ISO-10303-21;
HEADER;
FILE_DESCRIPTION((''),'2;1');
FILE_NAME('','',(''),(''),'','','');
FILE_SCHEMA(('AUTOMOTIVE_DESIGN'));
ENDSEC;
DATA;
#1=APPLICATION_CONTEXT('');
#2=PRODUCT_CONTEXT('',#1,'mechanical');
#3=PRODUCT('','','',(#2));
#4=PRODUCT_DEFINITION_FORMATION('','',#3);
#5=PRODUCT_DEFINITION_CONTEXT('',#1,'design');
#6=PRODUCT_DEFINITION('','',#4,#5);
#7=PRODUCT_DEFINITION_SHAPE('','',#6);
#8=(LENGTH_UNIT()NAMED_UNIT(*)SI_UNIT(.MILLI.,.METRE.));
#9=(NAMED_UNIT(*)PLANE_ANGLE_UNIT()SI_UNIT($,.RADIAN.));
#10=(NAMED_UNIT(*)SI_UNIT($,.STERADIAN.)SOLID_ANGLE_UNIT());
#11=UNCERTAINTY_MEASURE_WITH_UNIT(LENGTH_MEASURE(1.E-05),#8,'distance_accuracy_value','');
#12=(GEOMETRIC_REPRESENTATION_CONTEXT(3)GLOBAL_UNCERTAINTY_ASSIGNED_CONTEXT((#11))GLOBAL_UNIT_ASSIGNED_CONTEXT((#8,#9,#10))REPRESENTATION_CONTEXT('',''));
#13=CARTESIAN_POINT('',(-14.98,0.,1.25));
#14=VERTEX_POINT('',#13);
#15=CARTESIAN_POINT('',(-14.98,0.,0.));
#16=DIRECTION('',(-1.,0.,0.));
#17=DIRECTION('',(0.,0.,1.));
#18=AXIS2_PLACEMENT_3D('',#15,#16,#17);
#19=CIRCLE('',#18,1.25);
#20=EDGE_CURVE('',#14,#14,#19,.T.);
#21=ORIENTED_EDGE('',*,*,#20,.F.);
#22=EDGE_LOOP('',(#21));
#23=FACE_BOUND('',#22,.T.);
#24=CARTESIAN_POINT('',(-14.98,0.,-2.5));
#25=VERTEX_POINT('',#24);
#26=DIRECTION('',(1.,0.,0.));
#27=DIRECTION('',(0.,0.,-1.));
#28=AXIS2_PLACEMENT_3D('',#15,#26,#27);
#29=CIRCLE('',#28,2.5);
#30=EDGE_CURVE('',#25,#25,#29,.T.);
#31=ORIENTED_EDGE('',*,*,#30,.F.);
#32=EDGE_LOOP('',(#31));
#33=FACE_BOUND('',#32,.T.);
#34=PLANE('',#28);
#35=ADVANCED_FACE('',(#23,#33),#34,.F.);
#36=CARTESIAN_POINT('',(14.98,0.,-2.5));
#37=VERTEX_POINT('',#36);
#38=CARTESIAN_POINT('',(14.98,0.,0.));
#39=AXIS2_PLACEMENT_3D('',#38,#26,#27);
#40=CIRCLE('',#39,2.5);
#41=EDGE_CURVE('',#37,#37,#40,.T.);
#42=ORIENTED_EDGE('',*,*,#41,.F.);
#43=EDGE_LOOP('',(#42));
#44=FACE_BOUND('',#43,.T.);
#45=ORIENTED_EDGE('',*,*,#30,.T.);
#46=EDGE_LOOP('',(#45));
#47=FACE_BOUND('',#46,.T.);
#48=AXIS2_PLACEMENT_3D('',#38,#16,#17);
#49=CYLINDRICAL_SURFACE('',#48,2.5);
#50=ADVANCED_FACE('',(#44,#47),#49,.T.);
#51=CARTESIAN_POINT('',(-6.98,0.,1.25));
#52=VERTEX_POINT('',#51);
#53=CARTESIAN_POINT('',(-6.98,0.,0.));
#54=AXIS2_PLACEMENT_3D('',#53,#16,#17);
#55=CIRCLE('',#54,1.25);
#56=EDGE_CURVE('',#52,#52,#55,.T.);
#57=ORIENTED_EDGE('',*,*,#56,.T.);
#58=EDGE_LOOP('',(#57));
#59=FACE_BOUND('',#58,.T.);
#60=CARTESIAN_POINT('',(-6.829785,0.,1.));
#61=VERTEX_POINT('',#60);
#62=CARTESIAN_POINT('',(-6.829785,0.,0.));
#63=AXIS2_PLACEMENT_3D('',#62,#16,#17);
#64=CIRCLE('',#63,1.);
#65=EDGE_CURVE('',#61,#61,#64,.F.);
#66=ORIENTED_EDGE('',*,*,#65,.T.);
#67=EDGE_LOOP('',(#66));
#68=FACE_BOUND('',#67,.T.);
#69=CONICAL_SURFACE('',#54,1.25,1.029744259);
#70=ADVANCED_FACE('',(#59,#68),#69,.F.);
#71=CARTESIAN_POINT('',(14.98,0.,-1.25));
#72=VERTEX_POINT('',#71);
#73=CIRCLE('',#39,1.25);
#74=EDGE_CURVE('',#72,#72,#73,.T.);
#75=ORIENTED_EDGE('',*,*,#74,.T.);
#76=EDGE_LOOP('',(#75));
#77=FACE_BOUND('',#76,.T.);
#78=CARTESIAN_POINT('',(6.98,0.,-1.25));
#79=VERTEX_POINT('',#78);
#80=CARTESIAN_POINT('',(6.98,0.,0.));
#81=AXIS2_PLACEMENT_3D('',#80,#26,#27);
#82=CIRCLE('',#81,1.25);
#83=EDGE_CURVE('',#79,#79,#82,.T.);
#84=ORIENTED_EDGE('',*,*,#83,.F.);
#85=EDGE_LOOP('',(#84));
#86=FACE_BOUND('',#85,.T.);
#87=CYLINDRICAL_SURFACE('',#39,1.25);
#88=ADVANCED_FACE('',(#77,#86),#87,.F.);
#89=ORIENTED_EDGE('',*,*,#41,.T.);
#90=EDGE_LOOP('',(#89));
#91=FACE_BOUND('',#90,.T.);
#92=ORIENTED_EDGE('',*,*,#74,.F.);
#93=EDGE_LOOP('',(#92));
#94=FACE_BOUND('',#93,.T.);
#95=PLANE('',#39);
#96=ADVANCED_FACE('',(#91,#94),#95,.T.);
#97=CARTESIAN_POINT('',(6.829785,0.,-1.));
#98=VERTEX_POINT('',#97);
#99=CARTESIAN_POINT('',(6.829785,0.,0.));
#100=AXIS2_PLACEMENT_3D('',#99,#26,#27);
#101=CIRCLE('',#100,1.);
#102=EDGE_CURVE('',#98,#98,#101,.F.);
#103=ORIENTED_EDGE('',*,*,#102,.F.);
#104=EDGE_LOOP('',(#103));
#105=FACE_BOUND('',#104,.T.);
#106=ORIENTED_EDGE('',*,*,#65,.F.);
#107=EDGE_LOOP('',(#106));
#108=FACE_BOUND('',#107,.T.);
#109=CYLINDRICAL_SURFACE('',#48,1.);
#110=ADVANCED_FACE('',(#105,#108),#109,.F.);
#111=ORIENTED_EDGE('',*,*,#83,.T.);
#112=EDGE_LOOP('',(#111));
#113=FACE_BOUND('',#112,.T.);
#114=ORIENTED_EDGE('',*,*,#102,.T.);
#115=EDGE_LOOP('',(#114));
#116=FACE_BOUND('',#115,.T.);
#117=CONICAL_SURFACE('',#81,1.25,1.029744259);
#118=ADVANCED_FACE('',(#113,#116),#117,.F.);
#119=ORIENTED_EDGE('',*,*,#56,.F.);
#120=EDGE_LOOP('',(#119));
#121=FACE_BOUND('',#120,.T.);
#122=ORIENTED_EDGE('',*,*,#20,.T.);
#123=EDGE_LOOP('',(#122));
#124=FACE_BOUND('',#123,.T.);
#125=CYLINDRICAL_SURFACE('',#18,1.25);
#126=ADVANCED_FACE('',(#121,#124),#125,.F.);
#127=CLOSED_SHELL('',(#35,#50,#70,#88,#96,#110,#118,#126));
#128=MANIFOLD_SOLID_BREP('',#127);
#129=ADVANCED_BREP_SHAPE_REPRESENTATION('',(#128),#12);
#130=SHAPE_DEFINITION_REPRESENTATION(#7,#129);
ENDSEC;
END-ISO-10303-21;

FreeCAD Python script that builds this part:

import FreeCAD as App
import Part
import Sketcher
Q = App.Units.Quantity


def add_polygon(sketch, points):
    """Adds a closed chain of lines whose ends are joined by coincident constraints."""
    first, n = sketch.GeometryCount, len(points)
    for a, b in zip(points, points[1:] + points[:1]):
        sketch.addGeometry(Part.LineSegment(App.Vector(*a, 0), App.Vector(*b, 0)), False)
    for i in range(n):
        sketch.addConstraint(Sketcher.Constraint("Coincident", first + i, 2, first + (i + 1) % n, 1))

doc = App.newDocument("Part")
body = doc.addObject("PartDesign::Body", "Body")

sketch1 = body.newObject("Sketcher::SketchObject", "Sketch")
sketch1.AttachmentSupport = (doc.getObject("YZ_Plane"), [""])
sketch1.MapMode = "FlatFace"
sketch1.addGeometry(Part.Circle(App.Vector(0, 0, 0), App.Vector(0, 0, 1), 2.5), False)
sketch1.addGeometry(Part.Circle(App.Vector(0, 0, 0), App.Vector(0, 0, 1), 1), False)
sketch1.addConstraint(Sketcher.Constraint("Coincident", 0, 3, -1, 1))
sketch1.addConstraint(Sketcher.Constraint("Coincident", 1, 3, -1, 1))
sketch1.addConstraint(Sketcher.Constraint("Diameter", 0, Q("5 mm")))
sketch1.addConstraint(Sketcher.Constraint("Diameter", 1, Q("2 mm")))
pad1 = body.newObject("PartDesign::Pad", "Pad")
pad1.Profile = sketch1
pad1.Length = 29.96
pad1.Midplane = True

sketch2 = body.newObject("Sketcher::SketchObject", "Sketch001")
sketch2.AttachmentSupport = (doc.getObject("XZ_Plane"), [""])
sketch2.MapMode = "FlatFace"
add_polygon(sketch2, [(6.2, 0), (15, 0), (15, -1.2), (7, -1.2)])
sketch2.addConstraint(Sketcher.Constraint("Horizontal", 0))
sketch2.addConstraint(Sketcher.Constraint("Vertical", 1))
sketch2.addConstraint(Sketcher.Constraint("Horizontal", 2))
sketch2.addConstraint(Sketcher.Constraint("PointOnObject", 0, 2, -1))
sketch2.addConstraint(Sketcher.Constraint("DistanceX", 2, 2, 2, 1, Q("8 mm")))
sketch2.addConstraint(Sketcher.Constraint("Angle", 3, Q("121 deg")))
sketch2.addConstraint(Sketcher.Constraint("DistanceY", 1, 2, 1, 1, Q("1.25 mm")))
sketch2.addConstraint(Sketcher.Constraint("DistanceX", -1, 1, 0, 2, Q("14.98 mm")))
groove = body.newObject("PartDesign::Groove", "Groove")
groove.Profile = sketch2
groove.ReferenceAxis = (sketch2, ["H_Axis"])
groove.Angle = 360
doc.recompute()

mirrored = body.newObject("PartDesign::Mirrored", "Mirrored")
mirrored.Originals = [groove]
mirrored.MirrorPlane = (doc.getObject("YZ_Plane"), [""])
body.Tip = mirrored

doc.recompute()
